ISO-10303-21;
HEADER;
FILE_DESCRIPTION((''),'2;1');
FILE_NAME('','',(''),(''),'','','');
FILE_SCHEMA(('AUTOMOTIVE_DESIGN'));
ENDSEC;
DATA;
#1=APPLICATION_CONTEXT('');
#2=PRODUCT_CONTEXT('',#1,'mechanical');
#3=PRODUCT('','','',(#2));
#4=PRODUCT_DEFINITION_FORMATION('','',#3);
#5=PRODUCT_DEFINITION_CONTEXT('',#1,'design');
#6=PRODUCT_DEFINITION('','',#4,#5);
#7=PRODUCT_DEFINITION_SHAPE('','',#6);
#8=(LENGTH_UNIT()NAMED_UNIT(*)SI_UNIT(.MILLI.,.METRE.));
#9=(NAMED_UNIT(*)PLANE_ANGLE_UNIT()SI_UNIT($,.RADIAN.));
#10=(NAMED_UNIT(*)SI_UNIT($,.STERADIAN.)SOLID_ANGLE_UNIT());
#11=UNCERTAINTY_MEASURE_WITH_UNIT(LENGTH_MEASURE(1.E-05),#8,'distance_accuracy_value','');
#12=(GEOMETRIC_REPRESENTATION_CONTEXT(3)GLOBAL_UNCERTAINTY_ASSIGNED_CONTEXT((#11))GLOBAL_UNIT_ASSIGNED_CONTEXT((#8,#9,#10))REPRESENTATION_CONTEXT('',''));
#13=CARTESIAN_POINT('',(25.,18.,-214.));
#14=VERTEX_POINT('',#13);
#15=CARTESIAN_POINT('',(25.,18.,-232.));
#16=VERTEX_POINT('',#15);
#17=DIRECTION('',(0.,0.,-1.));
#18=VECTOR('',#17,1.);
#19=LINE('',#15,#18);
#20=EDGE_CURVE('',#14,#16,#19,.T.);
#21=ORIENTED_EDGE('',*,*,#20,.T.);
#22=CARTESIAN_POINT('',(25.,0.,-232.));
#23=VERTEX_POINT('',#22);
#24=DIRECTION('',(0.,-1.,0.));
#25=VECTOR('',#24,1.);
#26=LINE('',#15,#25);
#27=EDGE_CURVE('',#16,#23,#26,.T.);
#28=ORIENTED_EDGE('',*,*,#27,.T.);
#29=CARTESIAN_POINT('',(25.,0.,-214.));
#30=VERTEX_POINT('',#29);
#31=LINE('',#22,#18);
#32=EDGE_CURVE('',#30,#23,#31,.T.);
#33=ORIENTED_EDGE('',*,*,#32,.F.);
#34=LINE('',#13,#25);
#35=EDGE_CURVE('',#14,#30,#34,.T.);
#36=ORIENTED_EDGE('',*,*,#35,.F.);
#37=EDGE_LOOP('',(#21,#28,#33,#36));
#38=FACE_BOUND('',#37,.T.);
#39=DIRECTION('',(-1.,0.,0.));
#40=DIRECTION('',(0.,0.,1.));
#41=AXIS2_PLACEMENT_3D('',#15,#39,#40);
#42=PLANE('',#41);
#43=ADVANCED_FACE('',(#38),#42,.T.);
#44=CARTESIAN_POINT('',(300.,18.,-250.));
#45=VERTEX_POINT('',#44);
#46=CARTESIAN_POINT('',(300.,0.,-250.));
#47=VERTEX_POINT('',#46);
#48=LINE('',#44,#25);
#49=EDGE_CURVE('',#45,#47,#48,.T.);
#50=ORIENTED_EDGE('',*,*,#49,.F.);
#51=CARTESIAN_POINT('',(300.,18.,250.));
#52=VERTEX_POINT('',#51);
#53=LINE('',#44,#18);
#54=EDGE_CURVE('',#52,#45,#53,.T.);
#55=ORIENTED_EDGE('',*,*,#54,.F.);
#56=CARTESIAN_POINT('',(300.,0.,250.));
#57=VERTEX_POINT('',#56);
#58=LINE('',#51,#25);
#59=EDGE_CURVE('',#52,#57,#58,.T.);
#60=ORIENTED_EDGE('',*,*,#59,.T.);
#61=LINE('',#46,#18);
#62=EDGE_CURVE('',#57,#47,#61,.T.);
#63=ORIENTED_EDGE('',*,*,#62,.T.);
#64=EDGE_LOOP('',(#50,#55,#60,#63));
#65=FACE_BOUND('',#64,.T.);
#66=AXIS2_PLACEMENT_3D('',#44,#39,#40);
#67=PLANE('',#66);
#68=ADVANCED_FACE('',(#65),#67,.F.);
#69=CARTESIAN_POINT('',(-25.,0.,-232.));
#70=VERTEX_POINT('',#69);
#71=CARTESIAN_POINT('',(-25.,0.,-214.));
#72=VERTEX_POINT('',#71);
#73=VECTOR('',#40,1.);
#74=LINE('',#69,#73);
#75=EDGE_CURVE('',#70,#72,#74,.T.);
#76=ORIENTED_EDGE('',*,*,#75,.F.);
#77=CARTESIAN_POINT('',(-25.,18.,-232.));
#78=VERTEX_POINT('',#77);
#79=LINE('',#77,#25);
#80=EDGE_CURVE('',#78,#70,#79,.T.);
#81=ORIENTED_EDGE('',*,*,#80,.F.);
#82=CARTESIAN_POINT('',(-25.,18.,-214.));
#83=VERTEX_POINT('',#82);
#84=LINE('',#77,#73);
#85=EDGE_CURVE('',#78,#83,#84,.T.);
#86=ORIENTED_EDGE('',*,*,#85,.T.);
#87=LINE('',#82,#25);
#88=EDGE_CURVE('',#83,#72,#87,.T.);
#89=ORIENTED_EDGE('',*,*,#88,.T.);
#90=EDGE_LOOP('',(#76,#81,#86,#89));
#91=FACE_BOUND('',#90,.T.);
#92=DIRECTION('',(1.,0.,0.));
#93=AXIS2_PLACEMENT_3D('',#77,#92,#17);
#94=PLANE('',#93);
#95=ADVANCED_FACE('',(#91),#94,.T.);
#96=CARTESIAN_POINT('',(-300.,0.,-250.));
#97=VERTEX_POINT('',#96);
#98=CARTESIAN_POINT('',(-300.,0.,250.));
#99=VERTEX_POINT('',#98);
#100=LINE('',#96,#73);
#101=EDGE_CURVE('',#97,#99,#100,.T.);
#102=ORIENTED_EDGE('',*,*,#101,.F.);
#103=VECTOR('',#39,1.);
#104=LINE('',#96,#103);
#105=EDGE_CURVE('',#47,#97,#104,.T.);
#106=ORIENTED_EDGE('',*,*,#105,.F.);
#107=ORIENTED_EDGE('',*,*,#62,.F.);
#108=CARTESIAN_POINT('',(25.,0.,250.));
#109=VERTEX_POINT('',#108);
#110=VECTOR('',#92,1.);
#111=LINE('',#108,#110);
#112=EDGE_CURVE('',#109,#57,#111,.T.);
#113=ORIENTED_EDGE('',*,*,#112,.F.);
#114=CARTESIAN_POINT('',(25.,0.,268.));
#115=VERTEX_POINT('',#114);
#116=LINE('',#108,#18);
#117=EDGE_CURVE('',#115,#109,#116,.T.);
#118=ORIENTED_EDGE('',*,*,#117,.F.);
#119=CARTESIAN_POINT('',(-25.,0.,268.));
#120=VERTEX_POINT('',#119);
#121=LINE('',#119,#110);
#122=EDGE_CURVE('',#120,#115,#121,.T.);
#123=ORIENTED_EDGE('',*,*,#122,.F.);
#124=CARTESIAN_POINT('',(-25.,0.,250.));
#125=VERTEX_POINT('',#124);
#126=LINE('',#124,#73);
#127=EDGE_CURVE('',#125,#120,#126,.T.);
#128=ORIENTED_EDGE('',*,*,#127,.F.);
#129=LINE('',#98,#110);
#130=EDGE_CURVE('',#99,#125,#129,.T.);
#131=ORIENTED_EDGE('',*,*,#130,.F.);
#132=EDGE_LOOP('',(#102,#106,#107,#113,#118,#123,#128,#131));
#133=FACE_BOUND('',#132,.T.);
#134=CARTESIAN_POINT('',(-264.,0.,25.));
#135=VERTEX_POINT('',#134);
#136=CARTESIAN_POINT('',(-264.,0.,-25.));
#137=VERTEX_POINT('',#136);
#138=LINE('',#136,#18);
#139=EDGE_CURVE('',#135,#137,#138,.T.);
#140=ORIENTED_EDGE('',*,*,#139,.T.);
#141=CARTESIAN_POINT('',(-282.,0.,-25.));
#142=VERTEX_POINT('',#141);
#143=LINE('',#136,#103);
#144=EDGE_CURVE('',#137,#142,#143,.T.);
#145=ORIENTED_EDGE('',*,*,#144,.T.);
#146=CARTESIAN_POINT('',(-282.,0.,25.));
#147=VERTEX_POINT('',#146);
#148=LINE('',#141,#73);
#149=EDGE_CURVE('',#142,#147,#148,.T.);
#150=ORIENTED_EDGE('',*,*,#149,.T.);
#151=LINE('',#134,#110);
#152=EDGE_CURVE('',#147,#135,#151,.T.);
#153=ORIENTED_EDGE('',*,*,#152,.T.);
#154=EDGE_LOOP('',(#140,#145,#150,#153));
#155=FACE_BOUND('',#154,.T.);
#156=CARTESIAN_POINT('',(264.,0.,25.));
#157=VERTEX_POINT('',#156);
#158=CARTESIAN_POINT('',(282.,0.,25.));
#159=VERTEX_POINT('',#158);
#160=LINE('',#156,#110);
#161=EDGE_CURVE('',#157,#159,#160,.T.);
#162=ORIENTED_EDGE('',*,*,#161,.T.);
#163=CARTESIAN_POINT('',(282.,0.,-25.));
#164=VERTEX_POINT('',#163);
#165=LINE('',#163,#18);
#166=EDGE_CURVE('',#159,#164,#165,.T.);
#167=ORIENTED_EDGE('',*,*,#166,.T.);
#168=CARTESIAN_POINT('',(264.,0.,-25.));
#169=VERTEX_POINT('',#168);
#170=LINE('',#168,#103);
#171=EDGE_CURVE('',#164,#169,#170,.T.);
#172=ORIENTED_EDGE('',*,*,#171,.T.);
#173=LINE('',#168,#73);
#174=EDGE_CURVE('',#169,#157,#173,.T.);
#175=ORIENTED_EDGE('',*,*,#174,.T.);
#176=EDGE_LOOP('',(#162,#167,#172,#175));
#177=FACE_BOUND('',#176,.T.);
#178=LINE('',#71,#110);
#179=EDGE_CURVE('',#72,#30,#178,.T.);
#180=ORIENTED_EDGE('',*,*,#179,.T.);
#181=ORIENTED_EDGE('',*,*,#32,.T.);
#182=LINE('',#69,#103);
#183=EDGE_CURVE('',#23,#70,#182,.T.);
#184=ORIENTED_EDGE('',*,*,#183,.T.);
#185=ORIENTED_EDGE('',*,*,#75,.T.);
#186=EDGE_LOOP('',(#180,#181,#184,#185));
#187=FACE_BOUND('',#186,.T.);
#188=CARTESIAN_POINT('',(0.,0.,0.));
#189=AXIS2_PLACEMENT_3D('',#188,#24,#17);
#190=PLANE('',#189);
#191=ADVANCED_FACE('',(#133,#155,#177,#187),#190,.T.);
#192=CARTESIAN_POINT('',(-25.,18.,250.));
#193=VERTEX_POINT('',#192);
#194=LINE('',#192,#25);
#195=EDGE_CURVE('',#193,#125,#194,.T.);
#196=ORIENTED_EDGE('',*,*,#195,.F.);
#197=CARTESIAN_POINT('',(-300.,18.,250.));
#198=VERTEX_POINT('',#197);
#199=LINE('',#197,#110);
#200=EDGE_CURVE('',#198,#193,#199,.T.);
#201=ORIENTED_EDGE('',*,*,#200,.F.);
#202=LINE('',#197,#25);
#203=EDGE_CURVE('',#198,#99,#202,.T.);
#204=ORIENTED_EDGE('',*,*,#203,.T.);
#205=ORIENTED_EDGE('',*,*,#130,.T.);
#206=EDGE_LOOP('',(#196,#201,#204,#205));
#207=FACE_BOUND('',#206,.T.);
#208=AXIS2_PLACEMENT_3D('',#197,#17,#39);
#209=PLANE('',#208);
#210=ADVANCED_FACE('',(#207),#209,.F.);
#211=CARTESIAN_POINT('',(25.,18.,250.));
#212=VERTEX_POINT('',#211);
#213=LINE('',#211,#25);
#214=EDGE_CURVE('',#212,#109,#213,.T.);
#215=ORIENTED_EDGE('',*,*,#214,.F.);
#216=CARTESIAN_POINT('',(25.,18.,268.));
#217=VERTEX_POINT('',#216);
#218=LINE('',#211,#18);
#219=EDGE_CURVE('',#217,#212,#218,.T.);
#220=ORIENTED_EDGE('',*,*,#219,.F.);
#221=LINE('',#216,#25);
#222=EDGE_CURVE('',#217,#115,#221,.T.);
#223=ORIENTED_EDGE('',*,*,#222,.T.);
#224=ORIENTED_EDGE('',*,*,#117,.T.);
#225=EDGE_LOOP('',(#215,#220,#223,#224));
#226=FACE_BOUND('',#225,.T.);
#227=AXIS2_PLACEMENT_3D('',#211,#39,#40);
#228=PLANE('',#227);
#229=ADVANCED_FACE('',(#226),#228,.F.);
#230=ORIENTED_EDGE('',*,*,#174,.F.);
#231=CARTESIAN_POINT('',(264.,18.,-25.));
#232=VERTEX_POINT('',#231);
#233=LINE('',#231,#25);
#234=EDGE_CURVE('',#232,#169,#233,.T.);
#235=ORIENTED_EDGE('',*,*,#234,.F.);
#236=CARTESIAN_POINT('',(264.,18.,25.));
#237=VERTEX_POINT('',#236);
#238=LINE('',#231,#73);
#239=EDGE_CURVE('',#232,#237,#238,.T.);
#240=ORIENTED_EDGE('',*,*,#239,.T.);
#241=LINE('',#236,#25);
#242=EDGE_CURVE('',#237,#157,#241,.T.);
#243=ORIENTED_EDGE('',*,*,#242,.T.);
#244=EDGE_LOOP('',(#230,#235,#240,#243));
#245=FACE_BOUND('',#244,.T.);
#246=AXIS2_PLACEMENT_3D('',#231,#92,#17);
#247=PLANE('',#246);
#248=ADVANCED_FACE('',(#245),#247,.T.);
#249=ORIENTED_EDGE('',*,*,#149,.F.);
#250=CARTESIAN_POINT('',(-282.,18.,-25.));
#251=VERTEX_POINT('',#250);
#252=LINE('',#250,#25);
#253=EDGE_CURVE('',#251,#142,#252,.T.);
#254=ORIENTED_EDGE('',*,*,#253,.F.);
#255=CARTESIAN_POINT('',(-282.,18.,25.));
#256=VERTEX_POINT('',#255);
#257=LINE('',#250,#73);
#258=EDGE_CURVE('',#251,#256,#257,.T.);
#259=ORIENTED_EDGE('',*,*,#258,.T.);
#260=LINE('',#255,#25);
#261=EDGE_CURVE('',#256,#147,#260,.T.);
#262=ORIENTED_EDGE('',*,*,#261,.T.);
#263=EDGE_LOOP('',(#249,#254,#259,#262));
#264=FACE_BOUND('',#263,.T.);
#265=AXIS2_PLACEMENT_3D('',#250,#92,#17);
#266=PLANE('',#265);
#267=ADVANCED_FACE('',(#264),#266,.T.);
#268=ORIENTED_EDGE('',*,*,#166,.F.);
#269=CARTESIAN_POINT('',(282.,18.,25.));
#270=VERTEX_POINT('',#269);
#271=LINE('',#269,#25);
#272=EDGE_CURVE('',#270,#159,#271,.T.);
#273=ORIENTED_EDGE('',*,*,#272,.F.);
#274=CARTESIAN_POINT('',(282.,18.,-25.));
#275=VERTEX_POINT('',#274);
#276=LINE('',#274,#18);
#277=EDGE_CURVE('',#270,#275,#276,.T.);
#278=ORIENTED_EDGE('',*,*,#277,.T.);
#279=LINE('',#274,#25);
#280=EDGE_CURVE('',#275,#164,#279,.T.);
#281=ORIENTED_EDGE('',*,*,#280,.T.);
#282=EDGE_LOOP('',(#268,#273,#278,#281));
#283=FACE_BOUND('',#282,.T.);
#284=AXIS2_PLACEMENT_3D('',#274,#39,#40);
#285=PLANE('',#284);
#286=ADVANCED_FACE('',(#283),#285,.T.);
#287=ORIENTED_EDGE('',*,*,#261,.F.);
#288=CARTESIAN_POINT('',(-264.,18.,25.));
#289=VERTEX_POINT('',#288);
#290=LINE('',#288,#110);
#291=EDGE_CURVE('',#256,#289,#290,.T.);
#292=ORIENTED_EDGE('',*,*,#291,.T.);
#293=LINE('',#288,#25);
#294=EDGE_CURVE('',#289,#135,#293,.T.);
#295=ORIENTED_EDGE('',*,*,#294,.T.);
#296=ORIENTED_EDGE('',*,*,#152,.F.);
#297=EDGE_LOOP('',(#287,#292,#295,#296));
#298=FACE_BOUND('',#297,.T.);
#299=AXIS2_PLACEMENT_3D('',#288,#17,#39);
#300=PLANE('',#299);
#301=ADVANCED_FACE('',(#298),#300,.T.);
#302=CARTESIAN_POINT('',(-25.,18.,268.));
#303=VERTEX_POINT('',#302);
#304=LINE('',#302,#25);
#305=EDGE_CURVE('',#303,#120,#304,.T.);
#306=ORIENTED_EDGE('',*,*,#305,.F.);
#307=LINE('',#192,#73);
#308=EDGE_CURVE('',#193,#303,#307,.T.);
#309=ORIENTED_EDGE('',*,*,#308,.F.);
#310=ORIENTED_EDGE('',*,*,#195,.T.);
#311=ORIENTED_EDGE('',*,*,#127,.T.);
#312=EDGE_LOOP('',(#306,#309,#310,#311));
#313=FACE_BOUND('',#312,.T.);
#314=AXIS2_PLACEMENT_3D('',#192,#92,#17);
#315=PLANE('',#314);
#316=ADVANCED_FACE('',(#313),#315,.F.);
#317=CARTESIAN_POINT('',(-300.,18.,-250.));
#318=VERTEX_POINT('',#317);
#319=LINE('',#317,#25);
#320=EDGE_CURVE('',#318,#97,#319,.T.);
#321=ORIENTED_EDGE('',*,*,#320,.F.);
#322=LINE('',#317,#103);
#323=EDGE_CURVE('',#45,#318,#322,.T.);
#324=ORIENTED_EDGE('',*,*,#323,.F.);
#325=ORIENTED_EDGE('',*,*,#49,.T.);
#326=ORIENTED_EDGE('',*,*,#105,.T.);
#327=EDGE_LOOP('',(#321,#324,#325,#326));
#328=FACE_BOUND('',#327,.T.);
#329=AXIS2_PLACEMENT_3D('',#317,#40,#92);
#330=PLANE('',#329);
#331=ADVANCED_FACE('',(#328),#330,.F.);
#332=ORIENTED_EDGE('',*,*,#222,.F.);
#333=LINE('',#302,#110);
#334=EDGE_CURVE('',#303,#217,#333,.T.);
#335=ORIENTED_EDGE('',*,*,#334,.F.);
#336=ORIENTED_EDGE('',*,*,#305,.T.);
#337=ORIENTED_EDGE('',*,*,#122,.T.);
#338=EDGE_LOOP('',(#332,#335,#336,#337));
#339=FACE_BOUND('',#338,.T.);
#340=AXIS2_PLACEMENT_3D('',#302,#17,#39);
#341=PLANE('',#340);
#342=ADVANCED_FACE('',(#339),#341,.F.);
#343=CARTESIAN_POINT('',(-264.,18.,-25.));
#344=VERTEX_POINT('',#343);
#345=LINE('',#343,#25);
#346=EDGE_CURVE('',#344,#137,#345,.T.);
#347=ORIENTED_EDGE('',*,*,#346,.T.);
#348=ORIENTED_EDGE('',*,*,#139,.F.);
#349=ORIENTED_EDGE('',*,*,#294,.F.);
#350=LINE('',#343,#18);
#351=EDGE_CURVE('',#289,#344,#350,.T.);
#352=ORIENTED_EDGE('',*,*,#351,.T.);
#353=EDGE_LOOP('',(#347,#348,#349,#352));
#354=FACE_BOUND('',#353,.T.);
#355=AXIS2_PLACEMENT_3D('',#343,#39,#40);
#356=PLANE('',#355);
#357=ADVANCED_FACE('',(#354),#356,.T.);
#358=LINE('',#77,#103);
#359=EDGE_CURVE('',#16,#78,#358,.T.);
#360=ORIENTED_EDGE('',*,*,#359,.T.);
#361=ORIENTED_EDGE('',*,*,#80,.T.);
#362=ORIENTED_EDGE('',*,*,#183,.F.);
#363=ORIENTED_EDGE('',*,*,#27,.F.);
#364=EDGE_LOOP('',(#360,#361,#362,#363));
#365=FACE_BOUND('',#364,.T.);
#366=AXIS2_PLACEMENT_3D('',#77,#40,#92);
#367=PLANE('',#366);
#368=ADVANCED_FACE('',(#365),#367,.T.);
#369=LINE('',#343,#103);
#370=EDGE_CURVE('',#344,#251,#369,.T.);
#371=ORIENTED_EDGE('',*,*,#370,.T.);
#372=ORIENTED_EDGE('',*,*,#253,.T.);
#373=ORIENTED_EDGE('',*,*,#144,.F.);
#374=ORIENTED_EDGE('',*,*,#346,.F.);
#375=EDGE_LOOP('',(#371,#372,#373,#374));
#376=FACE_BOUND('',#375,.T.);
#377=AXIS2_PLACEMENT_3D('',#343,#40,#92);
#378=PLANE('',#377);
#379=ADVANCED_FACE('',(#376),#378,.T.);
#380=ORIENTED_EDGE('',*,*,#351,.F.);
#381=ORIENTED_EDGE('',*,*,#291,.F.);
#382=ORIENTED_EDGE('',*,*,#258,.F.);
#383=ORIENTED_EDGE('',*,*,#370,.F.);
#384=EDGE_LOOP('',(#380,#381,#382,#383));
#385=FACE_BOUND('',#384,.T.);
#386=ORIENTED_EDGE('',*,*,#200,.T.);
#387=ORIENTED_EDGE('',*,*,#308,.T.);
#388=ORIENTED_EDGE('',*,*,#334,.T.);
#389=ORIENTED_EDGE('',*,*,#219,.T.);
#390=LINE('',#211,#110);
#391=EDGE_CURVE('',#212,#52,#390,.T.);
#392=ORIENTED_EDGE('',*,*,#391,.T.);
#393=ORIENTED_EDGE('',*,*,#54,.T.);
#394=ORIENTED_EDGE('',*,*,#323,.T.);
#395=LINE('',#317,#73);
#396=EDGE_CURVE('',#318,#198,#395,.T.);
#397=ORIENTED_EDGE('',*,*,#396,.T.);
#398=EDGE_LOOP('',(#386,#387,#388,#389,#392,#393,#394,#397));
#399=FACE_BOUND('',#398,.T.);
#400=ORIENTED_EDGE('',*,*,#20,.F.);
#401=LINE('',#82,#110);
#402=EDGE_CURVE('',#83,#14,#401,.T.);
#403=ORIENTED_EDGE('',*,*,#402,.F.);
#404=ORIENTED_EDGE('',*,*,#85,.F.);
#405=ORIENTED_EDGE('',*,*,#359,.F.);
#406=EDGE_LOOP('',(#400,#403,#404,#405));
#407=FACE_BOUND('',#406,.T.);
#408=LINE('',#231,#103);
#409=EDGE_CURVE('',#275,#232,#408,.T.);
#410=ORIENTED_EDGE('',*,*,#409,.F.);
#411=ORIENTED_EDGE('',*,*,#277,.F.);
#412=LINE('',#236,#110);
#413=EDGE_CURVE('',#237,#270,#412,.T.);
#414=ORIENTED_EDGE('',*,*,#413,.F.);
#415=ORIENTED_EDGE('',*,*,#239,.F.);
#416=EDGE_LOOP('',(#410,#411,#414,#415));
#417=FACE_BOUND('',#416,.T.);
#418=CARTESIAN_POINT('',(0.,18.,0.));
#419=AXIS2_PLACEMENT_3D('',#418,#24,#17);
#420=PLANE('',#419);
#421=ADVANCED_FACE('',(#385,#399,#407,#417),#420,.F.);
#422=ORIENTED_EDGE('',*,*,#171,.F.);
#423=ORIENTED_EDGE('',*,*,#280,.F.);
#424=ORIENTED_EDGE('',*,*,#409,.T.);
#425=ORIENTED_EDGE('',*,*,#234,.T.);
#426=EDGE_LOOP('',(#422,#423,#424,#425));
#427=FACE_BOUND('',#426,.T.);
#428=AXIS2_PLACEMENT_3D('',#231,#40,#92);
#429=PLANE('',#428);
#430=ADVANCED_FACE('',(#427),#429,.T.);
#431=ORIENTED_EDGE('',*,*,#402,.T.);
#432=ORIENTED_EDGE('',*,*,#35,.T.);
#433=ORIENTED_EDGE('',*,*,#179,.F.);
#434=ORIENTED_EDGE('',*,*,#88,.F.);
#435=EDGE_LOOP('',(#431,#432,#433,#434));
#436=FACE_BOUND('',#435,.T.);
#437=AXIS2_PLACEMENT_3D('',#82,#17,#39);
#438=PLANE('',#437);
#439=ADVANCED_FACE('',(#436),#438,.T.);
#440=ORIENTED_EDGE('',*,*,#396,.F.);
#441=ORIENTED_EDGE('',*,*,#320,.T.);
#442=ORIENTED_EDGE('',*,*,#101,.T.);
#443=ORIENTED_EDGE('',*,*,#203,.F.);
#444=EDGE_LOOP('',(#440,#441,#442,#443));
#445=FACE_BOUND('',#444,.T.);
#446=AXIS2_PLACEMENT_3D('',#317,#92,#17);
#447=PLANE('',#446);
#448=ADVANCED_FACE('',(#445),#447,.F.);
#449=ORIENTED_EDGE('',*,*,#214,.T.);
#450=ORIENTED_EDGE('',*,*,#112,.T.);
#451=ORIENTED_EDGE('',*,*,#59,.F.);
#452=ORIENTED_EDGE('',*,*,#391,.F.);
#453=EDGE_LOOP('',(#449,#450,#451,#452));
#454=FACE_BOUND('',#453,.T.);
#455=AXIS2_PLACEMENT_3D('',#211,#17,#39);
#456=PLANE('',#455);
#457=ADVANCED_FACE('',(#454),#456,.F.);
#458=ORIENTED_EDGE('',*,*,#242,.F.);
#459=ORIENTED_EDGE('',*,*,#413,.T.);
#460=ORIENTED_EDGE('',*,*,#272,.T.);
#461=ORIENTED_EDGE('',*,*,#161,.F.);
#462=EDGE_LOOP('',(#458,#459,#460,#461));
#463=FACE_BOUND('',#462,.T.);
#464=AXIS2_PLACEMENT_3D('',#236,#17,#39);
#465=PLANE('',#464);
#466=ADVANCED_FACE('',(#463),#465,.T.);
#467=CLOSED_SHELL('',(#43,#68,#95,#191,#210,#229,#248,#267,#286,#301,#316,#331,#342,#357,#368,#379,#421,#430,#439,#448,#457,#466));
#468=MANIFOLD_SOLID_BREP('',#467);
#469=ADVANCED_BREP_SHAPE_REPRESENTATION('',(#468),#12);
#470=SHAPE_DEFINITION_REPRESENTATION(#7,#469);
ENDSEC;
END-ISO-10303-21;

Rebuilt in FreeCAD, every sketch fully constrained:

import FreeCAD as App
import Part
import Sketcher

V = App.Vector

doc = App.newDocument("Part")
params = doc.addObject("Spreadsheet::Sheet", "Params")
for row, (alias, value) in enumerate([
    ("sketch1_width", "600 mm"),
    ("sketch1_width2", "275 mm"),
    ("sketch1_width3", "18 mm"),
    ("sketch1_height", "500 mm"),
    ("pad1_length", "18 mm"),
], start=1):
    params.set(f"A{row}", alias)
    params.set(f"B{row}", "=" + value)
    params.setAlias(f"B{row}", alias)

body = doc.addObject("PartDesign::Body", "Body")

# Sketch on XZ plane
sketch1 = body.newObject("Sketcher::SketchObject", "Sketch")
sketch1.AttachmentSupport = (doc.getObject("XZ_Plane"), [""])
sketch1.MapMode = "FlatFace"
sketch1.addGeometry([
    Part.LineSegment(V(300, -250, 0), V(-300, -250, 0)),  # 0
    Part.LineSegment(V(-300, -250, 0), V(-300, 250, 0)),  # 1
    Part.LineSegment(V(-300, 250, 0), V(-25, 250, 0)),  # 2
    Part.LineSegment(V(-25, 250, 0), V(-25, 268, 0)),  # 3
    Part.LineSegment(V(-25, 268, 0), V(25, 268, 0)),  # 4
    Part.LineSegment(V(25, 268, 0), V(25, 250, 0)),  # 5
    Part.LineSegment(V(25, 250, 0), V(300, 250, 0)),  # 6
    Part.LineSegment(V(300, 250, 0), V(300, -250, 0)),  # 7
    Part.LineSegment(V(264, 25, 0), V(264, -25, 0)),  # 8
    Part.LineSegment(V(264, -25, 0), V(282, -25, 0)),  # 9
    Part.LineSegment(V(282, -25, 0), V(282, 25, 0)),  # 10
    Part.LineSegment(V(282, 25, 0), V(264, 25, 0)),  # 11
    Part.LineSegment(V(-282, 25, 0), V(-282, -25, 0)),  # 12
    Part.LineSegment(V(-282, -25, 0), V(-264, -25, 0)),  # 13
    Part.LineSegment(V(-264, -25, 0), V(-264, 25, 0)),  # 14
    Part.LineSegment(V(-264, 25, 0), V(-282, 25, 0)),  # 15
    Part.LineSegment(V(-25, -214, 0), V(-25, -232, 0)),  # 16
    Part.LineSegment(V(-25, -232, 0), V(25, -232, 0)),  # 17
    Part.LineSegment(V(25, -232, 0), V(25, -214, 0)),  # 18
    Part.LineSegment(V(25, -214, 0), V(-25, -214, 0)),  # 19
], False)
sketch1.addConstraint([
    Sketcher.Constraint("Coincident", 0, 2, 1, 1),
    Sketcher.Constraint("Coincident", 1, 2, 2, 1),
    Sketcher.Constraint("Coincident", 2, 2, 3, 1),
    Sketcher.Constraint("Coincident", 3, 2, 4, 1),
    Sketcher.Constraint("Coincident", 4, 2, 5, 1),
    Sketcher.Constraint("Coincident", 5, 2, 6, 1),
    Sketcher.Constraint("Coincident", 6, 2, 7, 1),
    Sketcher.Constraint("Coincident", 7, 2, 0, 1),
    Sketcher.Constraint("Coincident", 8, 2, 9, 1),
    Sketcher.Constraint("Coincident", 9, 2, 10, 1),
    Sketcher.Constraint("Coincident", 10, 2, 11, 1),
    Sketcher.Constraint("Coincident", 11, 2, 8, 1),
    Sketcher.Constraint("Coincident", 12, 2, 13, 1),
    Sketcher.Constraint("Coincident", 13, 2, 14, 1),
    Sketcher.Constraint("Coincident", 14, 2, 15, 1),
    Sketcher.Constraint("Coincident", 15, 2, 12, 1),
    Sketcher.Constraint("Coincident", 16, 2, 17, 1),
    Sketcher.Constraint("Coincident", 17, 2, 18, 1),
    Sketcher.Constraint("Coincident", 18, 2, 19, 1),
    Sketcher.Constraint("Coincident", 19, 2, 16, 1),
    Sketcher.Constraint("Horizontal", 0),
    Sketcher.Constraint("Vertical", 1),
    Sketcher.Constraint("Horizontal", 2),
    Sketcher.Constraint("Vertical", 3),
    Sketcher.Constraint("Horizontal", 4),
    Sketcher.Constraint("Vertical", 5),
    Sketcher.Constraint("Horizontal", 6),
    Sketcher.Constraint("Vertical", 7),
    Sketcher.Constraint("Vertical", 8),
    Sketcher.Constraint("Horizontal", 9),
    Sketcher.Constraint("Vertical", 10),
    Sketcher.Constraint("Horizontal", 11),
    Sketcher.Constraint("Vertical", 12),
    Sketcher.Constraint("Horizontal", 13),
    Sketcher.Constraint("Vertical", 14),
    Sketcher.Constraint("Horizontal", 15),
    Sketcher.Constraint("Vertical", 16),
    Sketcher.Constraint("Horizontal", 17),
    Sketcher.Constraint("Vertical", 18),
    Sketcher.Constraint("Horizontal", 19),
    Sketcher.Constraint("Symmetric", 0, 2, 6, 2, -1, 1),
    Sketcher.Constraint("Symmetric", 10, 2, 12, 2, -1, 1),
    Sketcher.Constraint("Symmetric", 8, 2, 14, 2, -1, 1),
    Sketcher.Constraint("Symmetric", 2, 2, 5, 2, -2),
    Sketcher.Constraint("Horizontal", 9, 2, 12, 2),
    Sketcher.Constraint("Vertical", 3, 2, 16, 2),
    Sketcher.Constraint("Vertical", 5, 2, 17, 2),
    Sketcher.Constraint("Equal", 15, 3),
    Sketcher.Constraint("Equal", 19, 8),
    Sketcher.Constraint("Equal", 5, 16),
    Sketcher.Constraint("DistanceX", 0, 2, 0, 1, 600.0),
    Sketcher.Constraint("DistanceX", 2, 1, 2, 2, 275.0),
    Sketcher.Constraint("DistanceX", 9, 1, 9, 2, 18.0),
    Sketcher.Constraint("DistanceY", 1, 1, 1, 2, 500.0),
    Sketcher.Constraint("DistanceX", -1, 1, 8, 2, 264.0),
    Sketcher.Constraint("DistanceY", 16, 2, -1, 1, 232.0),
])
sketch1.setExpression("Constraints[50]", "Params.sketch1_width")
sketch1.setExpression("Constraints[51]", "Params.sketch1_width2")
sketch1.setExpression("Constraints[52]", "Params.sketch1_width3")
sketch1.setExpression("Constraints[53]", "Params.sketch1_height")
pad1 = body.newObject("PartDesign::Pad", "Pad")
pad1.Profile = sketch1
pad1.setExpression("Length", "Params.pad1_length")
pad1.Reversed = True

doc.recompute()
